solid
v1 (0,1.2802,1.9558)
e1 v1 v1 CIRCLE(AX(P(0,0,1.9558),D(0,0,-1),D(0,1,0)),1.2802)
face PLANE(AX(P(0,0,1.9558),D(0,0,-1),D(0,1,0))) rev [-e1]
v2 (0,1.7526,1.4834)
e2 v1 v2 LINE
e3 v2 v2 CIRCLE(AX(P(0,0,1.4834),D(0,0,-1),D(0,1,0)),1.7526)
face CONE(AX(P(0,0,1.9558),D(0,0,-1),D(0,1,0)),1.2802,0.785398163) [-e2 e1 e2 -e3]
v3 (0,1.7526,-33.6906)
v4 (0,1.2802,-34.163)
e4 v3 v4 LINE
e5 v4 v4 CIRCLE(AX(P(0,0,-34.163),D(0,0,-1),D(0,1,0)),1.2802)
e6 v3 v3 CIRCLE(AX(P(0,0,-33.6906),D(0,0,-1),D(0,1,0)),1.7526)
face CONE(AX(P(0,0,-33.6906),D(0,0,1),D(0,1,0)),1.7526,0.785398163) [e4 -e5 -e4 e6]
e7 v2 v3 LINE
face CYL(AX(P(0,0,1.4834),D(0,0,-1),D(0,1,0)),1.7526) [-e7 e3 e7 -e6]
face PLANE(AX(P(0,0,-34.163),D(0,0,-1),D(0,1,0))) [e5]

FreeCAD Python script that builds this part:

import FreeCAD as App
import Part
import Sketcher
from FreeCAD import Vector
Q = App.Units.Quantity

doc = App.newDocument("Part")
body = doc.addObject("PartDesign::Body", "Body")

# Sketch on YZ plane
sketch1 = body.newObject("Sketcher::SketchObject", "Sketch")
sketch1.AttachmentSupport = (doc.getObject("YZ_Plane"), [""])
sketch1.MapMode = "FlatFace"
sketch1.addGeometry(Part.LineSegment(Vector(0, 2, 0), Vector(0, -34.2, 0)), False)
sketch1.addGeometry(Part.LineSegment(Vector(0, -34.2, 0), Vector(1.3, -34.2, 0)), False)
sketch1.addGeometry(Part.LineSegment(Vector(1.3, -34.2, 0), Vector(1.8, -33.7, 0)), False)
sketch1.addGeometry(Part.LineSegment(Vector(1.8, -33.7, 0), Vector(1.8, 1.5, 0)), False)
sketch1.addGeometry(Part.LineSegment(Vector(1.8, 1.5, 0), Vector(1.3, 2, 0)), False)
sketch1.addGeometry(Part.LineSegment(Vector(1.3, 2, 0), Vector(0, 2, 0)), False)
sketch1.addConstraint(Sketcher.Constraint("Coincident", 0, 2, 1, 1))
sketch1.addConstraint(Sketcher.Constraint("Coincident", 1, 2, 2, 1))
sketch1.addConstraint(Sketcher.Constraint("Coincident", 2, 2, 3, 1))
sketch1.addConstraint(Sketcher.Constraint("Coincident", 3, 2, 4, 1))
sketch1.addConstraint(Sketcher.Constraint("Coincident", 4, 2, 5, 1))
sketch1.addConstraint(Sketcher.Constraint("Coincident", 5, 2, 0, 1))
sketch1.addConstraint(Sketcher.Constraint("Vertical", 0))
sketch1.addConstraint(Sketcher.Constraint("Horizontal", 1))
sketch1.addConstraint(Sketcher.Constraint("Vertical", 3))
sketch1.addConstraint(Sketcher.Constraint("Horizontal", 5))
sketch1.addConstraint(Sketcher.Constraint("PointOnObject", 0, 2, -2))
sketch1.addConstraint(Sketcher.Constraint("Perpendicular", 2, 4))
sketch1.addConstraint(Sketcher.Constraint("Vertical", 1, 2, 4, 2))
sketch1.addConstraint(Sketcher.Constraint("Equal", 2, 4))
sketch1.addConstraint(Sketcher.Constraint("DistanceY", 0, 2, 0, 1, Q("1.422 in")))
sketch1.addConstraint(Sketcher.Constraint("DistanceX", 1, 1, 1, 2, Q("0.0504 in")))
sketch1.addConstraint(Sketcher.Constraint("DistanceY", 3, 1, 3, 2, Q("1.3848 in")))
sketch1.addConstraint(Sketcher.Constraint("DistanceY", 0, 2, -1, 1, Q("1.345 in")))
revolution = body.newObject("PartDesign::Revolution", "Revolution")
revolution.Profile = sketch1
revolution.ReferenceAxis = (sketch1, ["V_Axis"])
revolution.Angle = 360

doc.recompute()
